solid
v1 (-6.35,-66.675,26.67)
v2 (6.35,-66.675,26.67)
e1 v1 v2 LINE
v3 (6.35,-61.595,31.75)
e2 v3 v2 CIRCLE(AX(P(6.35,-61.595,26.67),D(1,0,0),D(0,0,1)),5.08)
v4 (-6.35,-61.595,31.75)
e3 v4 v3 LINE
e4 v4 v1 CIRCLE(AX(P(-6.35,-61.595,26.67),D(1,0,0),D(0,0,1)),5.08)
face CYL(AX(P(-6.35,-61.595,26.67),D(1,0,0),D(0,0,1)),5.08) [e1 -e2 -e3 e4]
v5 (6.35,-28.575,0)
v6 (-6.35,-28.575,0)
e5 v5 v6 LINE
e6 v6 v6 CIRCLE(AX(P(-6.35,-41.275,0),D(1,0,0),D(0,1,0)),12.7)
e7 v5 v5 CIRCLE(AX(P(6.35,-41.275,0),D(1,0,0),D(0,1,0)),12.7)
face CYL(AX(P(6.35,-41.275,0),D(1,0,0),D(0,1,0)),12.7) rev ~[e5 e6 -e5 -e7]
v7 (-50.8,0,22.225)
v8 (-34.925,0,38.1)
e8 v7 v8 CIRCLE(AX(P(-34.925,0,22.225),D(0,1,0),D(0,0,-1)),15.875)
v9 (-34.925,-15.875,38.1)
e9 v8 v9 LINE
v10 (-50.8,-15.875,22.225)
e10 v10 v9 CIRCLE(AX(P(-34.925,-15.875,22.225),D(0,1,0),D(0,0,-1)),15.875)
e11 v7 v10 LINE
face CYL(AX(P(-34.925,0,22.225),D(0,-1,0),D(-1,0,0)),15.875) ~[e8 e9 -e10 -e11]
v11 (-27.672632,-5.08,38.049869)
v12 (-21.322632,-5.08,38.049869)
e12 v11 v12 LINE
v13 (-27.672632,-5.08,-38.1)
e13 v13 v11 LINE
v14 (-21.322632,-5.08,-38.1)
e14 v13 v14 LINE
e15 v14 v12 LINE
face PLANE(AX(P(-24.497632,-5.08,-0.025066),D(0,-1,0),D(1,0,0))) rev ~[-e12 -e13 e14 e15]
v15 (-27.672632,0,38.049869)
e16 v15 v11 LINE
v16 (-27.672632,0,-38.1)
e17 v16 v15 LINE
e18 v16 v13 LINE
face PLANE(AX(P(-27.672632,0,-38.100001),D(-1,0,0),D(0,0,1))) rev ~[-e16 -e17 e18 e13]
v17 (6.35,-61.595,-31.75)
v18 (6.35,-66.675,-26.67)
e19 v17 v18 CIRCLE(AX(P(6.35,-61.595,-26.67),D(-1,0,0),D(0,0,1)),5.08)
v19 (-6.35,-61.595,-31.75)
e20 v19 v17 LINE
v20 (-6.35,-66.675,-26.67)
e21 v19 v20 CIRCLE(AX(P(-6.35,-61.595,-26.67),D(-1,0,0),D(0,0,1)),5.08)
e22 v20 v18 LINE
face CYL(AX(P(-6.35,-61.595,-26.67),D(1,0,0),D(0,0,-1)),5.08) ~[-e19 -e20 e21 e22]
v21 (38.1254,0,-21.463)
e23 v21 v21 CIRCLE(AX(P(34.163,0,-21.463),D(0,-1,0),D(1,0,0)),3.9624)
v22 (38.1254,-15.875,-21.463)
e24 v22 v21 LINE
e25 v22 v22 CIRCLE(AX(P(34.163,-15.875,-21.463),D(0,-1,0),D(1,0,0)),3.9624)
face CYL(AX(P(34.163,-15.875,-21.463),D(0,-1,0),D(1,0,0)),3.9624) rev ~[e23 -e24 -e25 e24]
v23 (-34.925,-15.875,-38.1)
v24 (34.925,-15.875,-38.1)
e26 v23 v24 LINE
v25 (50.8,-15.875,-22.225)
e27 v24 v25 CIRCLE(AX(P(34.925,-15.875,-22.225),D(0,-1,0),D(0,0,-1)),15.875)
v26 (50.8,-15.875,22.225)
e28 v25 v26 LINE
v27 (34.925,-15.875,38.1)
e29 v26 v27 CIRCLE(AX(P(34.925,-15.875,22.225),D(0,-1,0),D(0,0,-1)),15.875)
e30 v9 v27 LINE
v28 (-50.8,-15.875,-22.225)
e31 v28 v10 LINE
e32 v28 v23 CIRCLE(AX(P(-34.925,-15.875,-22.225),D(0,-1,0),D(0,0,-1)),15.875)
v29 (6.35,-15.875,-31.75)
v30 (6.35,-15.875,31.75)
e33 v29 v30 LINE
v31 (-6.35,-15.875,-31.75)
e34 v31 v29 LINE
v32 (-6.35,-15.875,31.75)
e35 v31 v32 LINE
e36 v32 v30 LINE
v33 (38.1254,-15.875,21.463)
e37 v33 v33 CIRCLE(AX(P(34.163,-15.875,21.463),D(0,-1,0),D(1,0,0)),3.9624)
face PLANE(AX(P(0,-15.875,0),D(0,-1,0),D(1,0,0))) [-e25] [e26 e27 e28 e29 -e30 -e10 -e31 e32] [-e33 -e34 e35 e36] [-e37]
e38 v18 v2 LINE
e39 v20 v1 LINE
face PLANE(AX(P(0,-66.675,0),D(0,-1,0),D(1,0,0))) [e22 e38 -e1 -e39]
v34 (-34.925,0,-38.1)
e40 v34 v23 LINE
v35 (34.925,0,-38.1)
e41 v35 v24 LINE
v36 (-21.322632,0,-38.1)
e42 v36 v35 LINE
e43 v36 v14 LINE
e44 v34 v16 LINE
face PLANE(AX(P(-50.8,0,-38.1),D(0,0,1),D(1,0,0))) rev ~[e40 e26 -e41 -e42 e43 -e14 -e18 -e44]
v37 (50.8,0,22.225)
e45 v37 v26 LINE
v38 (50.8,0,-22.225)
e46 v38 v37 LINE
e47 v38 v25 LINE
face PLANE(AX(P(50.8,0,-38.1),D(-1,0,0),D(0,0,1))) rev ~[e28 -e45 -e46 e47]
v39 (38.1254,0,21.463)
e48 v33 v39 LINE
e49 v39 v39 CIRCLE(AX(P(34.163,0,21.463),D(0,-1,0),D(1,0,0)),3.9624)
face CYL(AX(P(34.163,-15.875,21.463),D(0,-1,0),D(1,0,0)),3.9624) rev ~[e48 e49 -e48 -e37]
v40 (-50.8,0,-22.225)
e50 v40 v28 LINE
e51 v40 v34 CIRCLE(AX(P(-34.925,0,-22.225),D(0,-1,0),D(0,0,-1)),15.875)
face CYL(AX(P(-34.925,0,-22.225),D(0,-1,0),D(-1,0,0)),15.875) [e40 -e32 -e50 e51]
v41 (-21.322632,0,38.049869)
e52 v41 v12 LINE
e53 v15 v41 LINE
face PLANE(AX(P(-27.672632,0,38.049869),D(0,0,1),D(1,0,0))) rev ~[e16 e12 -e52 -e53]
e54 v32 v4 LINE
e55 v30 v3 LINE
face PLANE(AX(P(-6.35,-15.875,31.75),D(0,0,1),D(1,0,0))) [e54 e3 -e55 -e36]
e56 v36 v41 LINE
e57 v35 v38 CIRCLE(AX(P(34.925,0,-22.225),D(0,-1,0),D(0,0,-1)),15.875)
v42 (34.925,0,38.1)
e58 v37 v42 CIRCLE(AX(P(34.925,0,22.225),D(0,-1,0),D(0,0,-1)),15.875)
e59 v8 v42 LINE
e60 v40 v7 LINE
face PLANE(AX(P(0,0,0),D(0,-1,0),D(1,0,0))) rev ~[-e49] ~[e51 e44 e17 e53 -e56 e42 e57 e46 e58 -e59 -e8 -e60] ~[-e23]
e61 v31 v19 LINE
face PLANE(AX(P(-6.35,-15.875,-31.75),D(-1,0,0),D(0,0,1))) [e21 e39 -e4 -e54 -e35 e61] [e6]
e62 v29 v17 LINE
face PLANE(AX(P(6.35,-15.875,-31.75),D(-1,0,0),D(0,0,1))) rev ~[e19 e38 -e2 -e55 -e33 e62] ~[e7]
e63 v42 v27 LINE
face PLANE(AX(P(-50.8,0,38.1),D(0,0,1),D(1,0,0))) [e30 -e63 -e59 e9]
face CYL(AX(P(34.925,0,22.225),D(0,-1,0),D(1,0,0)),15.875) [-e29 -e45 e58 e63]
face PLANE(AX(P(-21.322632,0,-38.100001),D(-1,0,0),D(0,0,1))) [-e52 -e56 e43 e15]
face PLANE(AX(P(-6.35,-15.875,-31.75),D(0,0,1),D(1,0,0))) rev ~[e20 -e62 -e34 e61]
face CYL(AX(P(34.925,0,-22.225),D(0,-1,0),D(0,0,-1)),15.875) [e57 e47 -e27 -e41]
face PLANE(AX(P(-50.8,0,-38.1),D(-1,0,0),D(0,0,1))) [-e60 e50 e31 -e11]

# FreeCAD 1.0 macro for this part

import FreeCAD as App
import Part
import Sketcher
Q = App.Units.Quantity


def edges_at(feature, points):
    """Names of the edges that pass closest to the given points."""
    edges = feature.Shape.Edges
    near = lambda p: min(range(len(edges)), key=lambda i: edges[i].distToShape(Part.Vertex(*p))[0])
    return sorted({f"Edge{near(p) + 1}" for p in points})


def add_polygon(sketch, points):
    """Adds a closed chain of lines whose ends are joined by coincident constraints."""
    first, n = sketch.GeometryCount, len(points)
    for a, b in zip(points, points[1:] + points[:1]):
        sketch.addGeometry(Part.LineSegment(App.Vector(*a, 0), App.Vector(*b, 0)), False)
    for i in range(n):
        sketch.addConstraint(Sketcher.Constraint("Coincident", first + i, 2, first + (i + 1) % n, 1))

doc = App.newDocument("Part")
body = doc.addObject("PartDesign::Body", "Body")

sketch1 = body.newObject("Sketcher::SketchObject", "Sketch")
sketch1.AttachmentSupport = (doc.getObject("XZ_Plane"), [""])
sketch1.MapMode = "FlatFace"
add_polygon(sketch1, [(-50.8, 38.1), (-50.8, -38.1), (50.8, -38.1), (50.8, 38.1)])
sketch1.addConstraint(Sketcher.Constraint("Vertical", 0))
sketch1.addConstraint(Sketcher.Constraint("Horizontal", 1))
sketch1.addConstraint(Sketcher.Constraint("Vertical", 2))
sketch1.addConstraint(Sketcher.Constraint("Horizontal", 3))
sketch1.addConstraint(Sketcher.Constraint("Symmetric", 0, 2, 2, 2, -1, 1))
sketch1.addConstraint(Sketcher.Constraint("DistanceX", 1, 1, 1, 2, Q("4 in")))
sketch1.addConstraint(Sketcher.Constraint("DistanceY", 0, 2, 0, 1, Q("3 in")))
pad1 = body.newObject("PartDesign::Pad", "Pad")
pad1.Profile = sketch1
pad1.Length = Q("0.625 in")
doc.recompute()

fillet = body.newObject("PartDesign::Fillet", "Fillet")
fillet.Base = (pad1, edges_at(pad1, [
    (-50.8, -7.938, 38.1),
    (50.8, -7.938, 38.1),
    (50.8, -7.938, -38.1),
    (-50.8, -7.938, -38.1),
]))
fillet.Radius = Q("0.625 in")

sketch2 = body.newObject("Sketcher::SketchObject", "Sketch001")
sketch2.AttachmentSupport = (doc.getObject("XZ_Plane"), [""])
sketch2.MapMode = "FlatFace"
sketch2.AttachmentOffset = App.Placement(App.Vector(0, 0, 0.625 * 25.4), App.Rotation())
sketch2.addGeometry(Part.Circle(App.Vector(34.163, -21.463, 0), App.Vector(0, 0, 1), 3.9624), False)
sketch2.addGeometry(Part.Circle(App.Vector(34.163, 21.463, 0), App.Vector(0, 0, 1), 3.9624), False)
sketch2.addConstraint(Sketcher.Constraint("Equal", 0, 1))
sketch2.addConstraint(Sketcher.Constraint("Symmetric", 0, 3, 1, 3, -1))
sketch2.addConstraint(Sketcher.Constraint("Diameter", 0, Q("0.312 in")))
sketch2.addConstraint(Sketcher.Constraint("DistanceY", 0, 3, 1, 3, Q("1.69 in")))
sketch2.addConstraint(Sketcher.Constraint("DistanceX", -1, 1, 0, 3, Q("1.345 in")))
pocket1 = body.newObject("PartDesign::Pocket", "Pocket")
pocket1.Profile = sketch2
pocket1.Length = Q("1 in")

sketch3 = body.newObject("Sketcher::SketchObject", "Sketch002")
sketch3.AttachmentSupport = (doc.getObject("XZ_Plane"), [""])
sketch3.MapMode = "FlatFace"
sketch3.AttachmentOffset = App.Placement(App.Vector(0, 0, 0.625 * 25.4), App.Rotation())
add_polygon(sketch3, [(-6.35, 31.75), (-6.35, -31.75), (6.35, -31.75), (6.35, 31.75)])
sketch3.addConstraint(Sketcher.Constraint("Vertical", 0))
sketch3.addConstraint(Sketcher.Constraint("Horizontal", 1))
sketch3.addConstraint(Sketcher.Constraint("Vertical", 2))
sketch3.addConstraint(Sketcher.Constraint("Horizontal", 3))
sketch3.addConstraint(Sketcher.Constraint("Symmetric", 0, 2, 2, 2, -1, 1))
sketch3.addConstraint(Sketcher.Constraint("DistanceX", 1, 1, 1, 2, Q("0.5 in")))
sketch3.addConstraint(Sketcher.Constraint("DistanceY", 0, 2, 0, 1, Q("2.5 in")))
pad2 = body.newObject("PartDesign::Pad", "Pad001")
pad2.Profile = sketch3
pad2.Length = Q("2 in")
doc.recompute()

fillet2 = body.newObject("PartDesign::Fillet", "Fillet001")
fillet2.Base = (pad2, edges_at(pad2, [(0, -66.675, -31.75), (0, -66.675, 31.75)]))
fillet2.Radius = Q("0.2 in")

sketch4 = body.newObject("Sketcher::SketchObject", "Sketch003")
sketch4.AttachmentSupport = (doc.getObject("YZ_Plane"), [""])
sketch4.MapMode = "FlatFace"
sketch4.AttachmentOffset = App.Placement(App.Vector(0, 0, 0.25 * 25.4), App.Rotation())
sketch4.addGeometry(Part.Circle(App.Vector(-41.275, 0, 0), App.Vector(0, 0, 1), 12.7), False)
sketch4.addConstraint(Sketcher.Constraint("PointOnObject", 0, 3, -1))
sketch4.addConstraint(Sketcher.Constraint("Diameter", 0, Q("1 in")))
sketch4.addConstraint(Sketcher.Constraint("DistanceX", 0, 3, -1, 1, Q("1.625 in")))
pocket2 = body.newObject("PartDesign::Pocket", "Pocket001")
pocket2.Profile = sketch4
pocket2.Length = Q("1 in")

sketch5 = body.newObject("Sketcher::SketchObject", "Sketch004")
sketch5.AttachmentSupport = (doc.getObject("XZ_Plane"), [""])
sketch5.MapMode = "FlatFace"
add_polygon(sketch5, [(-27.672632, 38.049869), (-27.672632, -38.100001), (-21.322632, -38.100001), (-21.322632, 38.049869)])
sketch5.addConstraint(Sketcher.Constraint("Vertical", 0))
sketch5.addConstraint(Sketcher.Constraint("Horizontal", 1))
sketch5.addConstraint(Sketcher.Constraint("Vertical", 2))
sketch5.addConstraint(Sketcher.Constraint("Horizontal", 3))
sketch5.addConstraint(Sketcher.Constraint("DistanceX", 1, 1, 1, 2, Q("0.25 in")))
sketch5.addConstraint(Sketcher.Constraint("DistanceY", 0, 2, -1, 1, Q("1.5 in")))
sketch5.addConstraint(Sketcher.Constraint("DistanceY", 0, 2, 0, 1, 76.149869))
sketch5.addConstraint(Sketcher.Constraint("DistanceX", 0, 2, -1, 1, 27.672632))
pocket3 = body.newObject("PartDesign::Pocket", "Pocket002")
pocket3.Profile = sketch5
pocket3.Length = Q("0.2 in")
pocket3.Reversed = True

doc.recompute()
